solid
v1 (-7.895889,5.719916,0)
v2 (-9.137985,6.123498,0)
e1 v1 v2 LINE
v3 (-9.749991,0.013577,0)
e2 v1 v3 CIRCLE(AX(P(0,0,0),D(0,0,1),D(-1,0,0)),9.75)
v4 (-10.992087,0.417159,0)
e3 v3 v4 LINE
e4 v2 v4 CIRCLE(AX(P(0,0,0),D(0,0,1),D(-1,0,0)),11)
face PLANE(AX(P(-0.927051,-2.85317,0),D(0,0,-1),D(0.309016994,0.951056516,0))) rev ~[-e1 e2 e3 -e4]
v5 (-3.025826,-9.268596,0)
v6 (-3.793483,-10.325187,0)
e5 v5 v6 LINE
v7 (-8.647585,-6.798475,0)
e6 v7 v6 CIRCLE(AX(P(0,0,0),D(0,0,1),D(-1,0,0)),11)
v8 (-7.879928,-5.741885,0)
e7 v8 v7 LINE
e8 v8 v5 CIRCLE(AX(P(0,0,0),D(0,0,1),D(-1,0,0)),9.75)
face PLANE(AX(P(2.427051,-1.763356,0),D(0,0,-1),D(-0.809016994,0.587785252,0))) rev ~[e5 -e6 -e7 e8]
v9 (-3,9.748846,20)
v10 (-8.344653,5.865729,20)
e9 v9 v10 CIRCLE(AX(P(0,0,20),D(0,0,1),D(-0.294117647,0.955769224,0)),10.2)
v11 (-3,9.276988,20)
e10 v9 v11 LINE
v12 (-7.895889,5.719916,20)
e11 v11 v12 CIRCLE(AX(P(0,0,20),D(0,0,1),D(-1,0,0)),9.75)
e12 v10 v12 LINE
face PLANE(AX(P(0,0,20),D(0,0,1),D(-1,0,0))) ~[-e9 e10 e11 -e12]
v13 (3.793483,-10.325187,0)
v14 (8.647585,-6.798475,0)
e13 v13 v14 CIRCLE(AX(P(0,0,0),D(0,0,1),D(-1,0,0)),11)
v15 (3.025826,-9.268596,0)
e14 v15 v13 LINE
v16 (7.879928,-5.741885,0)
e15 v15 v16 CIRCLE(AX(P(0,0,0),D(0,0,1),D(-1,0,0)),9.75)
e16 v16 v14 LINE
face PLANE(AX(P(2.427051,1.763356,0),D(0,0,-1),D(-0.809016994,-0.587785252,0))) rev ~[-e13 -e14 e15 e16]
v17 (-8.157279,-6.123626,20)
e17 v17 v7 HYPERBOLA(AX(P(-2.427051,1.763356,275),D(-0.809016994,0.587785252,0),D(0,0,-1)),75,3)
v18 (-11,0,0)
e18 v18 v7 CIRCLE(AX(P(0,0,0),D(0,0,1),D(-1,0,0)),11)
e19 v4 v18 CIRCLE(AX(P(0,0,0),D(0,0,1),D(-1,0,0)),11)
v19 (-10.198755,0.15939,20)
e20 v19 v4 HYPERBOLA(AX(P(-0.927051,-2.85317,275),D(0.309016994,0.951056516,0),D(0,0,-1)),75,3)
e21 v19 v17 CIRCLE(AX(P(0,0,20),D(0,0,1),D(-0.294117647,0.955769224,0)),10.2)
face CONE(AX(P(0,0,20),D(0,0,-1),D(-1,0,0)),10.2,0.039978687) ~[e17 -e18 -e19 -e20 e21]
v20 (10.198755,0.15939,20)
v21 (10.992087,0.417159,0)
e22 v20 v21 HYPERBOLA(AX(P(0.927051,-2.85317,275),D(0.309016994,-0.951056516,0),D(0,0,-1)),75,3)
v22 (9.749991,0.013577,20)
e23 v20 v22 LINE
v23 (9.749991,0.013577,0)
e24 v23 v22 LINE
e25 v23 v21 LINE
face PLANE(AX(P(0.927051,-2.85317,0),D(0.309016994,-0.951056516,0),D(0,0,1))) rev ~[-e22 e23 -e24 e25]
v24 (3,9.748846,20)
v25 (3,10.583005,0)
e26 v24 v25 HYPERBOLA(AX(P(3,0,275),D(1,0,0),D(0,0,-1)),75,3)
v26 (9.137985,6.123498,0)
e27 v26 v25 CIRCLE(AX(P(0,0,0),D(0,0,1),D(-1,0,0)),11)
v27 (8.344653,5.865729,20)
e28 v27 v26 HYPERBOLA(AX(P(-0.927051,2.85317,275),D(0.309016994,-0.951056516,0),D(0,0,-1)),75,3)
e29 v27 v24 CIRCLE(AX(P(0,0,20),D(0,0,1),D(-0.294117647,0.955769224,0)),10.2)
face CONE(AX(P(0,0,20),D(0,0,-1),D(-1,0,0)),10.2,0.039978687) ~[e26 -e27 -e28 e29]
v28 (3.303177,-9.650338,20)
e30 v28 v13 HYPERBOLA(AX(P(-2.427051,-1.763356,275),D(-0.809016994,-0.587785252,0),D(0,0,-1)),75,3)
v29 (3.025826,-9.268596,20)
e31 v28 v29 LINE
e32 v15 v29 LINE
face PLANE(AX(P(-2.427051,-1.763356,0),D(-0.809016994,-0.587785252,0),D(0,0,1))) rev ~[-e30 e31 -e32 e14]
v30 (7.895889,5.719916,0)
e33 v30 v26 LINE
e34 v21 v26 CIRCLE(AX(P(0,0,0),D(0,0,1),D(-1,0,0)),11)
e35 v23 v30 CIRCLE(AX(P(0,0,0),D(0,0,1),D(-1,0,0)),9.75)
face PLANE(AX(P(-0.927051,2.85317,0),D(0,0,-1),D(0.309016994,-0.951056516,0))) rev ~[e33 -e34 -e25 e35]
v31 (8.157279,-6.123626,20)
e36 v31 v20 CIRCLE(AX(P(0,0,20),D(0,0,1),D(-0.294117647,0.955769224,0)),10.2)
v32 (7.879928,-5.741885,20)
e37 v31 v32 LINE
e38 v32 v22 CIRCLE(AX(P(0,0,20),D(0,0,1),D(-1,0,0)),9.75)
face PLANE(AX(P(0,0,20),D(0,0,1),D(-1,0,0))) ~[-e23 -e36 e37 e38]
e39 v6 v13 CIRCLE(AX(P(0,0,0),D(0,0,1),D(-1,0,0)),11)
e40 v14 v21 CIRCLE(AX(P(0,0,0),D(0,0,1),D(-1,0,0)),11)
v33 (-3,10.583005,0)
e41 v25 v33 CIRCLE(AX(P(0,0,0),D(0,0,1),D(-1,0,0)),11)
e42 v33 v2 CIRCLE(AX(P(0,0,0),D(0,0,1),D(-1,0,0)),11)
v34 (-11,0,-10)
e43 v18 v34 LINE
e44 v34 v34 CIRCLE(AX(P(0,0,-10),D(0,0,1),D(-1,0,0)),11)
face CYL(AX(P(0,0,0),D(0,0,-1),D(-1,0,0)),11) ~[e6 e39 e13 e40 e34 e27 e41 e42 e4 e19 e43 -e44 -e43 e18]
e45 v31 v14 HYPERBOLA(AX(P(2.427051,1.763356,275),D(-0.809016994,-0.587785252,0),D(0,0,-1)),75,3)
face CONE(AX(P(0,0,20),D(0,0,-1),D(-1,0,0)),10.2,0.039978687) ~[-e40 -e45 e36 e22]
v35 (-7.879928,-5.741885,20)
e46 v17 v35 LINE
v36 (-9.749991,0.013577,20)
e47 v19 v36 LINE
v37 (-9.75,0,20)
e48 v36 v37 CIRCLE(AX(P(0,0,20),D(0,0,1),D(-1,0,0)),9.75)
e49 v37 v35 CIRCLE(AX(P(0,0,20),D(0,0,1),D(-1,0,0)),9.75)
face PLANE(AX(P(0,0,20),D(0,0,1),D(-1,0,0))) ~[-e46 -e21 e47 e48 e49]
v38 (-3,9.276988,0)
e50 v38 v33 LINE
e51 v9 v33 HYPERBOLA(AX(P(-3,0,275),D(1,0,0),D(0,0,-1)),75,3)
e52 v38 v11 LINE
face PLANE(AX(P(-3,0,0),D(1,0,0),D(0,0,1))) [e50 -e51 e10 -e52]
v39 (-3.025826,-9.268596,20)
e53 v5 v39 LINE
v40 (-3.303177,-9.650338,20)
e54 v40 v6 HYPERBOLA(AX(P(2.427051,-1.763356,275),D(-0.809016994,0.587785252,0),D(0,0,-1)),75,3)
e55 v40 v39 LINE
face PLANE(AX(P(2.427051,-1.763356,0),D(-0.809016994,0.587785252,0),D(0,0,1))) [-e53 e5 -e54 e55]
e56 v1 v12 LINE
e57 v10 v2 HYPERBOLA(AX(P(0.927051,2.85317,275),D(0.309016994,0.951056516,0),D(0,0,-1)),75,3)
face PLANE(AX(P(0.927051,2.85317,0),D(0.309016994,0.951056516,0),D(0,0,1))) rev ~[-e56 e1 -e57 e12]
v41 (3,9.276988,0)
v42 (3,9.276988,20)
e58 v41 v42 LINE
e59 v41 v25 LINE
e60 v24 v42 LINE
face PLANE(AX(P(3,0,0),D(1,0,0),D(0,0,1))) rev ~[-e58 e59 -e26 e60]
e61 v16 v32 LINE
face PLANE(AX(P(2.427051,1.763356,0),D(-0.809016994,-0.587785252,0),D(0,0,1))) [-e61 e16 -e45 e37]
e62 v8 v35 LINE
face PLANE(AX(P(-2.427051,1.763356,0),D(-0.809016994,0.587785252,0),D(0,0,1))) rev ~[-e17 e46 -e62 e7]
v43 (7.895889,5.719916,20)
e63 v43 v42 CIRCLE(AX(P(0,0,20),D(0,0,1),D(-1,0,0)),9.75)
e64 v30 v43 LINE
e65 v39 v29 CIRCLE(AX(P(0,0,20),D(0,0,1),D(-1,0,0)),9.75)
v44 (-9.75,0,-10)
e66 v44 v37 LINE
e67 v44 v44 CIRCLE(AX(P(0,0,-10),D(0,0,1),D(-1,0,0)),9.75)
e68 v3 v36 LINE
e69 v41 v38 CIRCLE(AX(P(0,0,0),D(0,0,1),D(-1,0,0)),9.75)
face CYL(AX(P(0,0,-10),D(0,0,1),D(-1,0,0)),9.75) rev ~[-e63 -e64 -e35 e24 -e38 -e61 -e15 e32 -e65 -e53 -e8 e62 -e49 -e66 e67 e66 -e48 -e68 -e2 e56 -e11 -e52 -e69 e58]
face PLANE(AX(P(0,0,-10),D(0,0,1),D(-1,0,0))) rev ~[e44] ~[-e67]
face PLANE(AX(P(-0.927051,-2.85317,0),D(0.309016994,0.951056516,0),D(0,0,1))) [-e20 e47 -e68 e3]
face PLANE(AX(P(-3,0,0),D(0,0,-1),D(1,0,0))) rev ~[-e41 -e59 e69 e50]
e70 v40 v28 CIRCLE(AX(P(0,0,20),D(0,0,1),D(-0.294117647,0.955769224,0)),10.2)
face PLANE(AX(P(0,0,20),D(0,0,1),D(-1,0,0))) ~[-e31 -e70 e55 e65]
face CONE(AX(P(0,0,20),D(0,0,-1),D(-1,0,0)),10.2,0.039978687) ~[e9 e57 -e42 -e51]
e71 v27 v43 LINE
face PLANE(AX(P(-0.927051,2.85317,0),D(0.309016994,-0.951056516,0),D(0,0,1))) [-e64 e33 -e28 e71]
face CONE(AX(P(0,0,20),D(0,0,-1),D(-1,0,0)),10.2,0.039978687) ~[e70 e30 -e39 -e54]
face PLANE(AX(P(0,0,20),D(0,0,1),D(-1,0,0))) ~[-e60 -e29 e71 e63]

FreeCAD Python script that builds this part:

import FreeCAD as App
import Part
import Sketcher


def add_polygon(sketch, points):
    """Adds a closed chain of lines whose ends are joined by coincident constraints."""
    first, n = sketch.GeometryCount, len(points)
    for a, b in zip(points, points[1:] + points[:1]):
        sketch.addGeometry(Part.LineSegment(App.Vector(*a, 0), App.Vector(*b, 0)), False)
    for i in range(n):
        sketch.addConstraint(Sketcher.Constraint("Coincident", first + i, 2, first + (i + 1) % n, 1))

doc = App.newDocument("Part")
body = doc.addObject("PartDesign::Body", "Body")

sketch1 = body.newObject("Sketcher::SketchObject", "Sketch")
sketch1.AttachmentSupport = (doc.getObject("XZ_Plane"), [""])
sketch1.MapMode = "FlatFace"
add_polygon(sketch1, [(-9.75, -10), (-9.75, 20), (-10.2, 20), (-11, 0), (-11, -10)])
sketch1.addConstraint([
    Sketcher.Constraint("Vertical", 0),
    Sketcher.Constraint("Horizontal", 1),
    Sketcher.Constraint("Vertical", 3),
    Sketcher.Constraint("Horizontal", 4),
    Sketcher.Constraint("PointOnObject", 2, 2, -1),
    Sketcher.Constraint("DistanceY", 0, 1, 0, 2, 30.0),
    Sketcher.Constraint("DistanceY", 3, 2, 3, 1, 10.0),
    Sketcher.Constraint("DistanceX", 2, 2, -1, 1, 11.0),
    Sketcher.Constraint("DistanceX", 1, 2, 1, 1, 0.45),
    Sketcher.Constraint("DistanceX", 4, 1, 4, 2, 1.25),
])
revolution = body.newObject("PartDesign::Revolution", "Revolution")
revolution.Profile = sketch1
revolution.ReferenceAxis = (sketch1, ["V_Axis"])
revolution.Angle = 360

sketch2 = body.newObject("Sketcher::SketchObject", "Sketch001")
sketch2.AttachmentSupport = (doc.getObject("XZ_Plane"), [""])
sketch2.MapMode = "FlatFace"
add_polygon(sketch2, [(-3, 30), (-3, 0), (3, 0), (3, 30)])
sketch2.addConstraint([
    Sketcher.Constraint("Vertical", 0),
    Sketcher.Constraint("Horizontal", 1),
    Sketcher.Constraint("Vertical", 2),
    Sketcher.Constraint("Horizontal", 3),
    Sketcher.Constraint("Symmetric", 0, 2, 1, 2, -1, 1),
    Sketcher.Constraint("DistanceX", 1, 1, 1, 2, 6.0),
    Sketcher.Constraint("DistanceY", 0, 2, 0, 1, 30.0),
])
pocket1 = body.newObject("PartDesign::Pocket", "Pocket")
pocket1.Profile = sketch2
pocket1.Type = "ThroughAll"
doc.recompute()

polarpattern = body.newObject("PartDesign::PolarPattern", "PolarPattern")
polarpattern.Originals = [pocket1]
polarpattern.Axis = (doc.getObject("Z_Axis"), [""])
polarpattern.Angle = 360
polarpattern.Occurrences = 5
body.Tip = polarpattern

doc.recompute()
